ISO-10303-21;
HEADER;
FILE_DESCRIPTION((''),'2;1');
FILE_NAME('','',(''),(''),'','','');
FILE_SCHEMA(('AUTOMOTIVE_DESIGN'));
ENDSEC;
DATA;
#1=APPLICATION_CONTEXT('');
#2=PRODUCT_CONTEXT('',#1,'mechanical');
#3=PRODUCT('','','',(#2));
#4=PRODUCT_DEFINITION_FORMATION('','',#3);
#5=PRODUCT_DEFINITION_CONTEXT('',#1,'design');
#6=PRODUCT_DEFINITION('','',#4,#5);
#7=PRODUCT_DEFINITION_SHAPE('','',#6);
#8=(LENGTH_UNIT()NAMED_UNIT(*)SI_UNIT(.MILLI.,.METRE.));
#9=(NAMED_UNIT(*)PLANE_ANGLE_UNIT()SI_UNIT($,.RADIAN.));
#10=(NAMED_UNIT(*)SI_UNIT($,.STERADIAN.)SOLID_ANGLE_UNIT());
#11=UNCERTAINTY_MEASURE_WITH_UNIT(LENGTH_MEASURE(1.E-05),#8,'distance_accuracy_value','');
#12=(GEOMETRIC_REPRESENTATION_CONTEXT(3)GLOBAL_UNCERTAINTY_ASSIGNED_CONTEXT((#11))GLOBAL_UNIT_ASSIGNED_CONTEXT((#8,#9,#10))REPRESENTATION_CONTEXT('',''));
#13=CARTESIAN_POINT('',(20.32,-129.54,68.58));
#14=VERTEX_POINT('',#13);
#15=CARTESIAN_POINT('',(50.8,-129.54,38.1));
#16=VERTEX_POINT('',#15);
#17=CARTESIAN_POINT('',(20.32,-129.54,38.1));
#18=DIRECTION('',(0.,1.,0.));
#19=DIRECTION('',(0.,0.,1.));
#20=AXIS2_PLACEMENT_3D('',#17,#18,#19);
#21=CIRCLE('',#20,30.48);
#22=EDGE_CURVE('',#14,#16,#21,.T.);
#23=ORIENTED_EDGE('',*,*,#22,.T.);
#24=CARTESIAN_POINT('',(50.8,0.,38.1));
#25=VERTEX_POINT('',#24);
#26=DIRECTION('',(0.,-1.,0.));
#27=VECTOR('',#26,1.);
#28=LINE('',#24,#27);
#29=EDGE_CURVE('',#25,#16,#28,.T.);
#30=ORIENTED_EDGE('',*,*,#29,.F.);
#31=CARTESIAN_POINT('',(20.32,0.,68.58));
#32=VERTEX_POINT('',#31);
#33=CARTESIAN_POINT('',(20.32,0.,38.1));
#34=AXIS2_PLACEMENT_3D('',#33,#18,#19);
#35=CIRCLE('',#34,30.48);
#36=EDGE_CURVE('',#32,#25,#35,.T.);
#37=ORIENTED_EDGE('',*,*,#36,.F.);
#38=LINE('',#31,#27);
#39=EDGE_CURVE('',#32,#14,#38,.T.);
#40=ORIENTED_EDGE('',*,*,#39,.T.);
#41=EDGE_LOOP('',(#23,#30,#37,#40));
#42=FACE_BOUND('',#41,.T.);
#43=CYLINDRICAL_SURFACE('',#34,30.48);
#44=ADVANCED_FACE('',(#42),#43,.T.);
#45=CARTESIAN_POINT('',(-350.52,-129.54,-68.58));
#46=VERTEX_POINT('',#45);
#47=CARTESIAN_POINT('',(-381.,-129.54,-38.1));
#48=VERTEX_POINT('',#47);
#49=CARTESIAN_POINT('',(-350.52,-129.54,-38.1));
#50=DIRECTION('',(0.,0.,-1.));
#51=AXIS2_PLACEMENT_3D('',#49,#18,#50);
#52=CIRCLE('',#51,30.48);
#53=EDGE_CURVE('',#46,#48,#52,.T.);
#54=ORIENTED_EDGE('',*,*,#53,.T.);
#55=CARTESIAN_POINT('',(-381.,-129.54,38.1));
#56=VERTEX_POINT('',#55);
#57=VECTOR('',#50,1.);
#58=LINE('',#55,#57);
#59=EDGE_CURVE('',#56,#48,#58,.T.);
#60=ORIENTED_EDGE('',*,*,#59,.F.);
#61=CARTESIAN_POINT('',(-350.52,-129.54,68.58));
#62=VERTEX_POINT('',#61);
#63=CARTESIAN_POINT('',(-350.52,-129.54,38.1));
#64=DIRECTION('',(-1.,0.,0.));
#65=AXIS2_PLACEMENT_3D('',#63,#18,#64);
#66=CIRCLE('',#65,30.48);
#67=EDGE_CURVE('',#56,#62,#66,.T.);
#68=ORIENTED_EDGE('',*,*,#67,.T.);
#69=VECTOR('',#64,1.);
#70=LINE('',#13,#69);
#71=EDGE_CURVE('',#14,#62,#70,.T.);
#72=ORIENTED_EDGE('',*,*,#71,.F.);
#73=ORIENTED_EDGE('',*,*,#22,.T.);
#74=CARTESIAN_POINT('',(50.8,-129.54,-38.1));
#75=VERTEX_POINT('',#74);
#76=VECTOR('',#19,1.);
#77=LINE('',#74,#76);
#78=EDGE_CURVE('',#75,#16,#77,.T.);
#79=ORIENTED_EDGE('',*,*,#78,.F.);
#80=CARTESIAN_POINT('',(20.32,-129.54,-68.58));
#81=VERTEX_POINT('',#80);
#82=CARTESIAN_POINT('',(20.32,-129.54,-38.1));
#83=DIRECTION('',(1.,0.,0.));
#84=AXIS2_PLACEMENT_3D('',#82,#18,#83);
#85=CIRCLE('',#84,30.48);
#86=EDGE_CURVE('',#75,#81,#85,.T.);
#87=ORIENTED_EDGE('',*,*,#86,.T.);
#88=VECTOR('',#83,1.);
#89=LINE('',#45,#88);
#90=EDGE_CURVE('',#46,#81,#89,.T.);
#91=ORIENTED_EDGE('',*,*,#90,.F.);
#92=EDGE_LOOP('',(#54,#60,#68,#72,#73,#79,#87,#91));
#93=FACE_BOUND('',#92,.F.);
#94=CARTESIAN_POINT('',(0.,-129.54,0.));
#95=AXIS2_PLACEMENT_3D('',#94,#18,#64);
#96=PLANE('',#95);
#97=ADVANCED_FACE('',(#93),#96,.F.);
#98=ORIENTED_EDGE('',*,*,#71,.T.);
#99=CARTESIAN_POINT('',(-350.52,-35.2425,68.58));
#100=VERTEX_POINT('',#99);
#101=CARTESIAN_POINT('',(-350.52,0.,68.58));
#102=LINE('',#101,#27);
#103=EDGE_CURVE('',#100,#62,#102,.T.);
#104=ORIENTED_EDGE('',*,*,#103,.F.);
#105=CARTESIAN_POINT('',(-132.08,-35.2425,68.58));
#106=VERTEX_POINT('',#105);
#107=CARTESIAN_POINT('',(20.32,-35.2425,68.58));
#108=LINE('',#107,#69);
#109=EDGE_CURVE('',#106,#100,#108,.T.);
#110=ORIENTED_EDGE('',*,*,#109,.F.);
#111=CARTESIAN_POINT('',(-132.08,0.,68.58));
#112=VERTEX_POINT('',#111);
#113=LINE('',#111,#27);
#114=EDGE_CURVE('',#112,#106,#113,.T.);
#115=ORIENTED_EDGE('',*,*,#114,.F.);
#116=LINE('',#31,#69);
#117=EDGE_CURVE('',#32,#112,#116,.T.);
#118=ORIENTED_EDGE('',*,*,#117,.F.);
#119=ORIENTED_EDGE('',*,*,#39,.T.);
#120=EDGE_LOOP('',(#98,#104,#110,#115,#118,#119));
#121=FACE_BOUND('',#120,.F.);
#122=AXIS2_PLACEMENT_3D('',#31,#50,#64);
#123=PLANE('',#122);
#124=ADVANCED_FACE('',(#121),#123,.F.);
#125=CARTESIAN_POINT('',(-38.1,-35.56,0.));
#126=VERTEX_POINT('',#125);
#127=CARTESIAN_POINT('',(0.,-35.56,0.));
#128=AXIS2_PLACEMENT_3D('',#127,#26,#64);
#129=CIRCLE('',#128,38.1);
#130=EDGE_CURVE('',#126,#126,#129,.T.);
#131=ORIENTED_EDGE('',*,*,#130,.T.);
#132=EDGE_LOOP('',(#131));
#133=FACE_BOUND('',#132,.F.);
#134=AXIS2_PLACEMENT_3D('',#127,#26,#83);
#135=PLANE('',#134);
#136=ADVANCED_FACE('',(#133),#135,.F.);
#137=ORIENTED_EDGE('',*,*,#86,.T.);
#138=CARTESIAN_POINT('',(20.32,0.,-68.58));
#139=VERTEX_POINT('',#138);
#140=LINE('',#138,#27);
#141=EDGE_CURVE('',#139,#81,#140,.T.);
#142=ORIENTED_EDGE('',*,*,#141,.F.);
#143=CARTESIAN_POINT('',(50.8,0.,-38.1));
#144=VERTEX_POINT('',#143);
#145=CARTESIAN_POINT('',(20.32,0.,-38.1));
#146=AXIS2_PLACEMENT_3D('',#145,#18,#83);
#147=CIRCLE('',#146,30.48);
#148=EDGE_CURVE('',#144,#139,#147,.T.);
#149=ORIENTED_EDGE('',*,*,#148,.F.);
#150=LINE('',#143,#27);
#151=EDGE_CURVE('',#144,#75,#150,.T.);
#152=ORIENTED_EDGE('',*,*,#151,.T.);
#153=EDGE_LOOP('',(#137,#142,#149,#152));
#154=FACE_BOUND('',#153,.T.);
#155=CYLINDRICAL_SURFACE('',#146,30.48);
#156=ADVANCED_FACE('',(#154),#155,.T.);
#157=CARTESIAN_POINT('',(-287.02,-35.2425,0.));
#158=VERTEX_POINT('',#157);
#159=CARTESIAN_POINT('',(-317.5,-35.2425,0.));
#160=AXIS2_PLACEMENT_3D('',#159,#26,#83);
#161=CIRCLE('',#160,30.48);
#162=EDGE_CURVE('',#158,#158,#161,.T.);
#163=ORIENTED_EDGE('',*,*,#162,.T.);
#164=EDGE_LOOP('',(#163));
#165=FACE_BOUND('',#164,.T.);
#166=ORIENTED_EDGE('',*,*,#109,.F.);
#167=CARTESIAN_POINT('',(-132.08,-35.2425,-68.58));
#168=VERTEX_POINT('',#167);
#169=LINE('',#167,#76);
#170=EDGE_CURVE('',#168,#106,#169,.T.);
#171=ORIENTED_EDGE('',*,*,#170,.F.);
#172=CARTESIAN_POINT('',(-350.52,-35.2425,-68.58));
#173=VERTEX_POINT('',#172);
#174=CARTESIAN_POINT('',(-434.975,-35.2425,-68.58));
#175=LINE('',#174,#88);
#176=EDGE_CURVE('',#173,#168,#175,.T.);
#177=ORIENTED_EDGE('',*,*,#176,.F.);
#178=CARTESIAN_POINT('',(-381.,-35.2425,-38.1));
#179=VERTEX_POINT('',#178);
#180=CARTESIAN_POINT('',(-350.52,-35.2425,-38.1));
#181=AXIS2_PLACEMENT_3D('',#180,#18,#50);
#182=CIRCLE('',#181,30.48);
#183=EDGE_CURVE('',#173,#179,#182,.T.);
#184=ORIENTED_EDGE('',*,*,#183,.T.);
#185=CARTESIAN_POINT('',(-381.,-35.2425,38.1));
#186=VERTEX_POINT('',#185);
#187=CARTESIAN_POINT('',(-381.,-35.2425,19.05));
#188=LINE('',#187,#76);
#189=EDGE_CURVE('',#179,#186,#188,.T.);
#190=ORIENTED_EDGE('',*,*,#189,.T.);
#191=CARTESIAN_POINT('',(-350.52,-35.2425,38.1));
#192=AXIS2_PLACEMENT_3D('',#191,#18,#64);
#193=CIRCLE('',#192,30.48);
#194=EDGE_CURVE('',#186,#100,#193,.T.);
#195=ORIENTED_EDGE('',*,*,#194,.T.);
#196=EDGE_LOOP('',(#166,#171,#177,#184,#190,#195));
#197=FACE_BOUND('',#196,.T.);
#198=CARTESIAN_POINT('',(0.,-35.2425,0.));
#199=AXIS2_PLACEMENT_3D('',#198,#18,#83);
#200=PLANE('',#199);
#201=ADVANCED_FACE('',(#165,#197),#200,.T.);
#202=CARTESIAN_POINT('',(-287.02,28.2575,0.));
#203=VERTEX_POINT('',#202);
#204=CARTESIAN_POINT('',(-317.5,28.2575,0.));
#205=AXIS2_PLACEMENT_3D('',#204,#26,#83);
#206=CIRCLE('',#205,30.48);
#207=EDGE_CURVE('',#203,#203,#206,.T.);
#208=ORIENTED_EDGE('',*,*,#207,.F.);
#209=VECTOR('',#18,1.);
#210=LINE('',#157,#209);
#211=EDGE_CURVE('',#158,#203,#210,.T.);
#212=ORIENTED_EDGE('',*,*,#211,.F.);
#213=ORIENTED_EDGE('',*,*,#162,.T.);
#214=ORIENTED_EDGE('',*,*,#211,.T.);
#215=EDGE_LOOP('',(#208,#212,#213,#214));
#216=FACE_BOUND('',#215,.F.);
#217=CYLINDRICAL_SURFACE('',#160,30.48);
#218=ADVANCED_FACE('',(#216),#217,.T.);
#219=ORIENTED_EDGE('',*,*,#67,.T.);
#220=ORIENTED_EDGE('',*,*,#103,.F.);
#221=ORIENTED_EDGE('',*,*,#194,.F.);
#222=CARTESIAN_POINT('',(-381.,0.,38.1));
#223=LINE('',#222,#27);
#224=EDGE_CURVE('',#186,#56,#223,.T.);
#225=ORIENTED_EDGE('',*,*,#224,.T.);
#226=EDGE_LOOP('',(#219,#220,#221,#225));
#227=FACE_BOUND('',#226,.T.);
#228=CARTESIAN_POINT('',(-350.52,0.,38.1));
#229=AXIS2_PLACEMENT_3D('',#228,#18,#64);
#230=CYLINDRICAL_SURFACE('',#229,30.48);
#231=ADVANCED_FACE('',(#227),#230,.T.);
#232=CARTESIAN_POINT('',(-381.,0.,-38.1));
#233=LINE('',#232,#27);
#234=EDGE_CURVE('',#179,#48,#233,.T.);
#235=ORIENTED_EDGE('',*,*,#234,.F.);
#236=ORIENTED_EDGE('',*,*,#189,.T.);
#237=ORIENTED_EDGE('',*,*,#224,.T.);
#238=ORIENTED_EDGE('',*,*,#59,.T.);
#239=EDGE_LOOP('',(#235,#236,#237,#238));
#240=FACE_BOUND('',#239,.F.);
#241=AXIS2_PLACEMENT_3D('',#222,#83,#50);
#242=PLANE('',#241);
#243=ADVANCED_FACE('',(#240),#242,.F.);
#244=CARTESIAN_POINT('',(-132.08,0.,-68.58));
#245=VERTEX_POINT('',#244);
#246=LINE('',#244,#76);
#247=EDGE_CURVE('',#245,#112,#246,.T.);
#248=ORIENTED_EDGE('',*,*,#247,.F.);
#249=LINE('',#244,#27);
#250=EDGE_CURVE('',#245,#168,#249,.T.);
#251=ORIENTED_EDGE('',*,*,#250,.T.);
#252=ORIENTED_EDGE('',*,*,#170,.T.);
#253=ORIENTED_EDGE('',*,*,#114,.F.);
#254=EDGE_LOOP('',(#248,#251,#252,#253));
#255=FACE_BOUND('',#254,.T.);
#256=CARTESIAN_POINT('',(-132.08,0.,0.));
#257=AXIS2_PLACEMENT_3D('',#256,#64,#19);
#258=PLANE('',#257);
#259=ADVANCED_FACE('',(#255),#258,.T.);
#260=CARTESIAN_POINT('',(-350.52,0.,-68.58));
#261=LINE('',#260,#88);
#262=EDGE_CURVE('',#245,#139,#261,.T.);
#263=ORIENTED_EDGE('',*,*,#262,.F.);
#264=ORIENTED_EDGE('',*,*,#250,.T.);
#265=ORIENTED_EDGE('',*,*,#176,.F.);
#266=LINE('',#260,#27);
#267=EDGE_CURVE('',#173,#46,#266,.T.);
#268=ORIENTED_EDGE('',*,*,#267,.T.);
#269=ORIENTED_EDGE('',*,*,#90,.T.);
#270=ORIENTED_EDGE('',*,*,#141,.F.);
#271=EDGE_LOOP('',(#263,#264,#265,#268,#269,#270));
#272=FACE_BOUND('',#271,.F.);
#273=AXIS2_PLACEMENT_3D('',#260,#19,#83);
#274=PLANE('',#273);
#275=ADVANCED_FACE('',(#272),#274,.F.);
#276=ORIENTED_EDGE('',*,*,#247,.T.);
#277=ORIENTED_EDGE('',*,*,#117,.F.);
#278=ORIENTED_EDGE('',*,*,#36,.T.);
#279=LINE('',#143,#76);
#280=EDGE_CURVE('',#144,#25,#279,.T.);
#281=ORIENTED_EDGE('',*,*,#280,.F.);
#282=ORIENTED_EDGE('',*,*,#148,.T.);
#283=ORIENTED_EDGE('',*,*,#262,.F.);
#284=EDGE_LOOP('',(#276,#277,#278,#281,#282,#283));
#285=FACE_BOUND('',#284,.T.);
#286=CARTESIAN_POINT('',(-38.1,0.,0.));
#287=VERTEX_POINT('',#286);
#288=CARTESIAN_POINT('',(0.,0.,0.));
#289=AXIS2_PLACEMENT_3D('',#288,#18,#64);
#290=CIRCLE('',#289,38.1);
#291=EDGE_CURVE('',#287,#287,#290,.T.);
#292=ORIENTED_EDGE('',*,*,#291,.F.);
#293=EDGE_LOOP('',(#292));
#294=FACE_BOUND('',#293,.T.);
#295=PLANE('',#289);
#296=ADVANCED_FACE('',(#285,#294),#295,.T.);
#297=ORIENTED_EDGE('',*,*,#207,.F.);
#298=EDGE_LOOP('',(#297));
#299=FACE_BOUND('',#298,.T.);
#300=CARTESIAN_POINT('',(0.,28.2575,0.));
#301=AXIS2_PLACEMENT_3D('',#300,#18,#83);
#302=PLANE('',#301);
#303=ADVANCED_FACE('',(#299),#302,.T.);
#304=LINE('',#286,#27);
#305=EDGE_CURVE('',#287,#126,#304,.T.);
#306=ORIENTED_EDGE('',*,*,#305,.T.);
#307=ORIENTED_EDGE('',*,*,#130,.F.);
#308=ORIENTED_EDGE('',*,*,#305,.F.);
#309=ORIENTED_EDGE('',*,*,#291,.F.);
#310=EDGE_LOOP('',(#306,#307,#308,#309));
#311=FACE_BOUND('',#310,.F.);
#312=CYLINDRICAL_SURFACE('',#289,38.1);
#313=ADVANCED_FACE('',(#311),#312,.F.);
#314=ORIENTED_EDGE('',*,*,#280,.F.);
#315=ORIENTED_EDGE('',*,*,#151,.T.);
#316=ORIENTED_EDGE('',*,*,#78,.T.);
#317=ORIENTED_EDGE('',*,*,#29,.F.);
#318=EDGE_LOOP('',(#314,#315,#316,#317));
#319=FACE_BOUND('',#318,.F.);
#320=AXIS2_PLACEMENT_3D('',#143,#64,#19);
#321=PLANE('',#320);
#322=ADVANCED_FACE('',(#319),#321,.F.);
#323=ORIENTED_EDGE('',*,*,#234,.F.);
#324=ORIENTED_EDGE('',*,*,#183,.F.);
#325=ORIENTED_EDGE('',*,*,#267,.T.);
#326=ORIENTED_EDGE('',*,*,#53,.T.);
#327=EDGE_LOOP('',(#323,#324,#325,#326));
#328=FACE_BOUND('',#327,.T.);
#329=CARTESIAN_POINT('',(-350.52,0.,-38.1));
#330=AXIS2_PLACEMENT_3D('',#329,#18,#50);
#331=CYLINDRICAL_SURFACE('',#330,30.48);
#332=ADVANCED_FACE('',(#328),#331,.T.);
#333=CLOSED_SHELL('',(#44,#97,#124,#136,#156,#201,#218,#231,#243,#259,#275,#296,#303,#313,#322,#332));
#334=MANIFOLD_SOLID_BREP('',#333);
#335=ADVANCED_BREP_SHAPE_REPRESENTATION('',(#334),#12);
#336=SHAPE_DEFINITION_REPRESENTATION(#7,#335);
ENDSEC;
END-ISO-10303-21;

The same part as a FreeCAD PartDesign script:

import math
import FreeCAD as App
import Part
import Sketcher

V = App.Vector
Q = App.Units.Quantity


def add_polygon(sketch, points):
    """Adds a closed chain of lines whose ends are joined by coincident constraints."""
    first, n = sketch.GeometryCount, len(points)
    for a, b in zip(points, points[1:] + points[:1]):
        sketch.addGeometry(Part.LineSegment(App.Vector(*a, 0), App.Vector(*b, 0)), False)
    for i in range(n):
        sketch.addConstraint(Sketcher.Constraint("Coincident", first + i, 2, first + (i + 1) % n, 1))

doc = App.newDocument("Part")
body = doc.addObject("PartDesign::Body", "Body")

# Sketch on XZ plane
sketch1 = body.newObject("Sketcher::SketchObject", "Sketch")
sketch1.AttachmentSupport = (doc.getObject("XZ_Plane"), [""])
sketch1.MapMode = "FlatFace"
sketch1.addGeometry([
    Part.LineSegment(V(-350.52, 68.58, 0), V(20.32, 68.58, 0)),  # 0
    Part.ArcOfCircle(Part.Circle(V(20.32, 38.1, 0), V(0, 0, 1), 30.48), math.radians(0), math.radians(90)),  # 1
    Part.LineSegment(V(50.8, 38.1, 0), V(50.8, -38.1, 0)),  # 2
    Part.ArcOfCircle(Part.Circle(V(20.32, -38.1, 0), V(0, 0, 1), 30.48), math.radians(-90), math.radians(0)),  # 3
    Part.LineSegment(V(20.32, -68.58, 0), V(-350.52, -68.58, 0)),  # 4
    Part.ArcOfCircle(Part.Circle(V(-350.52, -38.1, 0), V(0, 0, 1), 30.48), math.radians(180), math.radians(270)),  # 5
    Part.LineSegment(V(-381, -38.1, 0), V(-381, 38.1, 0)),  # 6
    Part.ArcOfCircle(Part.Circle(V(-350.52, 38.1, 0), V(0, 0, 1), 30.48), math.radians(90), math.radians(180)),  # 7
    Part.Circle(V(0, 0, 0), V(0, 0, 1), 38.1),  # 8
], False)
sketch1.addConstraint([
    Sketcher.Constraint("Tangent", 0, 2, 1, 2),
    Sketcher.Constraint("Tangent", 1, 1, 2, 1),
    Sketcher.Constraint("Tangent", 2, 2, 3, 2),
    Sketcher.Constraint("Tangent", 3, 1, 4, 1),
    Sketcher.Constraint("Tangent", 4, 2, 5, 2),
    Sketcher.Constraint("Tangent", 5, 1, 6, 1),
    Sketcher.Constraint("Tangent", 6, 2, 7, 2),
    Sketcher.Constraint("Tangent", 7, 1, 0, 1),
    Sketcher.Constraint("Horizontal", 0),
    Sketcher.Constraint("Vertical", 2),
    Sketcher.Constraint("Horizontal", 4),
    Sketcher.Constraint("Vertical", 6),
    Sketcher.Constraint("Coincident", 8, 3, -1, 1),
    Sketcher.Constraint("Equal", 1, 3),
    Sketcher.Constraint("Equal", 3, 5),
    Sketcher.Constraint("Equal", 5, 7),
    Sketcher.Constraint("Diameter", 8, Q("3 in")),
    Sketcher.Constraint("Radius", 1, Q("1.2 in")),
    Sketcher.Constraint("DistanceY", 2, 2, 2, 1, Q("3 in")),
    Sketcher.Constraint("DistanceX", -1, 1, 1, 1, Q("2 in")),
    Sketcher.Constraint("DistanceY", -1, 1, 0, 2, Q("2.7 in")),
    Sketcher.Constraint("DistanceX", 0, 1, 0, 2, Q("14.6 in")),
])
pad1 = body.newObject("PartDesign::Pad", "Pad")
pad1.Profile = sketch1
pad1.Length = Q("5.1 in")

# Sketch on XZ plane
sketch2 = body.newObject("Sketcher::SketchObject", "Sketch001")
sketch2.AttachmentSupport = (doc.getObject("XZ_Plane"), [""])
sketch2.MapMode = "FlatFace"
sketch2.AttachmentOffset = App.Placement(V(0, 0, 5.1 * 25.4), App.Rotation())
sketch2.addGeometry(Part.Circle(V(0, 0, 0), V(0, 0, 1), 38.1), False)
sketch2.addConstraint([
    Sketcher.Constraint("Coincident", 0, 3, -1, 1),
    Sketcher.Constraint("Diameter", 0, Q("3 in")),
])
pad2 = body.newObject("PartDesign::Pad", "Pad001")
pad2.Profile = sketch2
pad2.Length = Q("3.7 in")
pad2.Reversed = True

# Sketch on XZ plane
sketch3 = body.newObject("Sketcher::SketchObject", "Sketch002")
sketch3.AttachmentSupport = (doc.getObject("XZ_Plane"), [""])
sketch3.MapMode = "FlatFace"
add_polygon(sketch3, [(-434.975, 68.58), (-132.08, 68.58), (-132.08, -68.58), (-434.975, -68.58)])  # lines 0-3
sketch3.addConstraint([
    Sketcher.Constraint("Horizontal", 0),
    Sketcher.Constraint("Vertical", 1),
    Sketcher.Constraint("Horizontal", 2),
    Sketcher.Constraint("Vertical", 3),
    Sketcher.Constraint("DistanceY", 1, 2, 1, 1, Q("5.4 in")),
    Sketcher.Constraint("DistanceX", 0, 2, -1, 1, Q("5.2 in")),
    Sketcher.Constraint("DistanceY", -1, 1, 0, 2, Q("2.7 in")),
    Sketcher.Constraint("DistanceX", 0, 1, 0, 2, Q("11.925 in")),
])
pocket1 = body.newObject("PartDesign::Pocket", "Pocket")
pocket1.Profile = sketch3
pocket1.Length = Q("1.3875 in")
pocket1.Reversed = True

# Sketch on XZ plane
sketch4 = body.newObject("Sketcher::SketchObject", "Sketch003")
sketch4.AttachmentSupport = (doc.getObject("XZ_Plane"), [""])
sketch4.MapMode = "FlatFace"
sketch4.AttachmentOffset = App.Placement(V(0, 0, 1.3875 * 25.4), App.Rotation())
sketch4.addGeometry(Part.Circle(V(-317.5, 0, 0), V(0, 0, 1), 30.48), False)
sketch4.addConstraint([
    Sketcher.Constraint("PointOnObject", 0, 3, -1),
    Sketcher.Constraint("Diameter", 0, Q("2.4 in")),
    Sketcher.Constraint("DistanceX", 0, 3, -1, 1, Q("12.5 in")),
])
pad3 = body.newObject("PartDesign::Pad", "Pad002")
pad3.Profile = sketch4
pad3.Length = Q("2.5 in")
pad3.Reversed = True

doc.recompute()
